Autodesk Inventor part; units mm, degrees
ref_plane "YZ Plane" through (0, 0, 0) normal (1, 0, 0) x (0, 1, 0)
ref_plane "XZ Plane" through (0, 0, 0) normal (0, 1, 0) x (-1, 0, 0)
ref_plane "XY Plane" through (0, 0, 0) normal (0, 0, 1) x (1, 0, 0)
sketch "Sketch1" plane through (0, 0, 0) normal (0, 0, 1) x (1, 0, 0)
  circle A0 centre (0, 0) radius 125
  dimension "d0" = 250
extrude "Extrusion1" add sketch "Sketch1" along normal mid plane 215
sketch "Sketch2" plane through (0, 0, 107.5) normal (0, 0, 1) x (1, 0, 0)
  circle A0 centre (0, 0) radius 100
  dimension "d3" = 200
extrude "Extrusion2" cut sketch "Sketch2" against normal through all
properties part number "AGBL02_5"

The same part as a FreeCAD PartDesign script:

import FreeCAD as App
import Part
import Sketcher

doc = App.newDocument("Part")
body = doc.addObject("PartDesign::Body", "Body")

sketch1 = body.newObject("Sketcher::SketchObject", "Sketch")
sketch1.AttachmentSupport = (doc.getObject("XY_Plane"), [""])
sketch1.MapMode = "FlatFace"
sketch1.addGeometry(Part.Circle(App.Vector(0, 0, 0), App.Vector(0, 0, 1), 125), False)
sketch1.addConstraint(Sketcher.Constraint("Coincident", 0, 3, -1, 1))
sketch1.addConstraint(Sketcher.Constraint("Diameter", 0, 250.0))
pad1 = body.newObject("PartDesign::Pad", "Pad")
pad1.Profile = sketch1
pad1.Length = 215
pad1.Midplane = True

sketch2 = body.newObject("Sketcher::SketchObject", "Sketch001")
sketch2.AttachmentSupport = (doc.getObject("XY_Plane"), [""])
sketch2.MapMode = "FlatFace"
sketch2.AttachmentOffset = App.Placement(App.Vector(0, 0, 107.5), App.Rotation())
sketch2.addGeometry(Part.Circle(App.Vector(0, 0, 0), App.Vector(0, 0, 1), 100), False)
sketch2.addConstraint(Sketcher.Constraint("Coincident", 0, 3, -1, 1))
sketch2.addConstraint(Sketcher.Constraint("Diameter", 0, 200.0))
pocket1 = body.newObject("PartDesign::Pocket", "Pocket")
pocket1.Profile = sketch2
pocket1.Type = "ThroughAll"

doc.recompute()
